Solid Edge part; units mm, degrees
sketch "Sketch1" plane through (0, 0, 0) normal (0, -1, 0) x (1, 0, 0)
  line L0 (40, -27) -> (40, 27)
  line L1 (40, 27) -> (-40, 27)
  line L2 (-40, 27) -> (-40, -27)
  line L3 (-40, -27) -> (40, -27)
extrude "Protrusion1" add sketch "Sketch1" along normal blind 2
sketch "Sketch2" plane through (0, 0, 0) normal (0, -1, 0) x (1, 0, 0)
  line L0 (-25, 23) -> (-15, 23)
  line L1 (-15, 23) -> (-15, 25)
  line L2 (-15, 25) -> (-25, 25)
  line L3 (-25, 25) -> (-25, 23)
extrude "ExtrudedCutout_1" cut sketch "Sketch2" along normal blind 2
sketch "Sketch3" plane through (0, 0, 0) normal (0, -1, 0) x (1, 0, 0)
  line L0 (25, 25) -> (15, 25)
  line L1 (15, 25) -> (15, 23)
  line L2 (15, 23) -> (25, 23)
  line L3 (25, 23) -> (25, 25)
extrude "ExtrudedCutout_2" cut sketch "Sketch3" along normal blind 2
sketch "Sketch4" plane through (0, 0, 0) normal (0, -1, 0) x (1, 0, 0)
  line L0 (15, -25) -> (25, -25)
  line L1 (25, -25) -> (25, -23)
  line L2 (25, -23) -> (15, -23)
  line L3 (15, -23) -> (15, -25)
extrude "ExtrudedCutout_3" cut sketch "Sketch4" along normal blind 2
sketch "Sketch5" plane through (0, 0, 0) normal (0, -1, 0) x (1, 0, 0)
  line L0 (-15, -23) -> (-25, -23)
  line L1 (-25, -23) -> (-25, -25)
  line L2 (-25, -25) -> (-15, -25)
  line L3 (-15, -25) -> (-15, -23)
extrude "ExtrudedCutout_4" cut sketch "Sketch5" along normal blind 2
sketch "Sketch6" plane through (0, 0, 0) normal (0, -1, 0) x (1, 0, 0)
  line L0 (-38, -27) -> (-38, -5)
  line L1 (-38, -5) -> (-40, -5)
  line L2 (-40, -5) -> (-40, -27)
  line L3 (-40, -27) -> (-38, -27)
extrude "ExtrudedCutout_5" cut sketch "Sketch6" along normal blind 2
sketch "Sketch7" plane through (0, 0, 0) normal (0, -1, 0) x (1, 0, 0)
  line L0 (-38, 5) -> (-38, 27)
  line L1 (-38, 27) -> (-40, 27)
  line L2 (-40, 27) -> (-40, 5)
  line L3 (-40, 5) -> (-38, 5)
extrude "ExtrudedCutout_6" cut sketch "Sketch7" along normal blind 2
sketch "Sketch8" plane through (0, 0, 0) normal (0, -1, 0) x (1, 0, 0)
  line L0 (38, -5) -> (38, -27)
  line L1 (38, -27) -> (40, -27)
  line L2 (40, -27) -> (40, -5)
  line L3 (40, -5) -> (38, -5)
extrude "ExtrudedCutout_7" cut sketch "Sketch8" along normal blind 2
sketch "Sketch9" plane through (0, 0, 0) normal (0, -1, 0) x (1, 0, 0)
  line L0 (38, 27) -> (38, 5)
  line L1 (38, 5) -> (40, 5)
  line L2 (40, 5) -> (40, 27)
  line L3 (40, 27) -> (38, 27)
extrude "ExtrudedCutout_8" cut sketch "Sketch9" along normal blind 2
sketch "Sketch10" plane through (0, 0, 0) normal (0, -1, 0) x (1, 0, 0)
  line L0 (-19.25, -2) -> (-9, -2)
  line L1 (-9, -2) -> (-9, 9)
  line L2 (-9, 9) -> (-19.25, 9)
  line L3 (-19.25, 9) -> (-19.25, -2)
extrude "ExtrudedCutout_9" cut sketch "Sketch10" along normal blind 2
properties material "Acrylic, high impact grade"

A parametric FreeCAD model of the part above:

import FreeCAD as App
import Part
import Sketcher


def add_polygon(sketch, points):
    """Adds a closed chain of lines whose ends are joined by coincident constraints."""
    first, n = sketch.GeometryCount, len(points)
    for a, b in zip(points, points[1:] + points[:1]):
        sketch.addGeometry(Part.LineSegment(App.Vector(*a, 0), App.Vector(*b, 0)), False)
    for i in range(n):
        sketch.addConstraint(Sketcher.Constraint("Coincident", first + i, 2, first + (i + 1) % n, 1))

doc = App.newDocument("Part")
body = doc.addObject("PartDesign::Body", "Body")

# Sketch on XZ plane
sketch1 = body.newObject("Sketcher::SketchObject", "Sketch")
sketch1.AttachmentSupport = (doc.getObject("XZ_Plane"), [""])
sketch1.MapMode = "FlatFace"
add_polygon(sketch1, [(-40, -27), (40, -27), (40, 27), (-40, 27)])  # lines 0-3
sketch1.addConstraint([
    Sketcher.Constraint("Horizontal", 0),
    Sketcher.Constraint("Vertical", 1),
    Sketcher.Constraint("Horizontal", 2),
    Sketcher.Constraint("Vertical", 3),
    Sketcher.Constraint("Symmetric", 0, 2, 2, 2, -1, 1),
    Sketcher.Constraint("DistanceX", 0, 1, 0, 2, 80.0),
    Sketcher.Constraint("DistanceY", 1, 1, 1, 2, 54.0),
])
pad1 = body.newObject("PartDesign::Pad", "Pad")
pad1.Profile = sketch1
pad1.Length = 2

# Sketch on XZ plane
sketch2 = body.newObject("Sketcher::SketchObject", "Sketch001")
sketch2.AttachmentSupport = (doc.getObject("XZ_Plane"), [""])
sketch2.MapMode = "FlatFace"
add_polygon(sketch2, [(-25, 25), (-25, 23), (-15, 23), (-15, 25)])  # lines 0-3
sketch2.addConstraint([
    Sketcher.Constraint("Vertical", 0),
    Sketcher.Constraint("Horizontal", 1),
    Sketcher.Constraint("Vertical", 2),
    Sketcher.Constraint("Horizontal", 3),
    Sketcher.Constraint("DistanceX", 1, 1, 1, 2, 10.0),
    Sketcher.Constraint("DistanceY", 0, 2, 0, 1, 2.0),
    Sketcher.Constraint("DistanceX", 0, 2, -1, 1, 25.0),
    Sketcher.Constraint("DistanceY", -1, 1, 0, 2, 23.0),
])
pocket1 = body.newObject("PartDesign::Pocket", "Pocket")
pocket1.Profile = sketch2
pocket1.Length = 2
pocket1.Reversed = True

# Sketch on XZ plane
sketch3 = body.newObject("Sketcher::SketchObject", "Sketch002")
sketch3.AttachmentSupport = (doc.getObject("XZ_Plane"), [""])
sketch3.MapMode = "FlatFace"
add_polygon(sketch3, [(25, 23), (25, 25), (15, 25), (15, 23)])  # lines 0-3
sketch3.addConstraint([
    Sketcher.Constraint("Vertical", 0),
    Sketcher.Constraint("Horizontal", 1),
    Sketcher.Constraint("Vertical", 2),
    Sketcher.Constraint("Horizontal", 3),
    Sketcher.Constraint("DistanceX", 1, 2, 1, 1, 10.0),
    Sketcher.Constraint("DistanceY", 0, 1, 0, 2, 2.0),
    Sketcher.Constraint("DistanceX", -1, 1, 0, 2, 25.0),
    Sketcher.Constraint("DistanceY", -1, 1, 0, 2, 25.0),
])
pocket2 = body.newObject("PartDesign::Pocket", "Pocket001")
pocket2.Profile = sketch3
pocket2.Length = 2
pocket2.Reversed = True

# Sketch on XZ plane
sketch4 = body.newObject("Sketcher::SketchObject", "Sketch003")
sketch4.AttachmentSupport = (doc.getObject("XZ_Plane"), [""])
sketch4.MapMode = "FlatFace"
add_polygon(sketch4, [(15, -23), (15, -25), (25, -25), (25, -23)])  # lines 0-3
sketch4.addConstraint([
    Sketcher.Constraint("Vertical", 0),
    Sketcher.Constraint("Horizontal", 1),
    Sketcher.Constraint("Vertical", 2),
    Sketcher.Constraint("Horizontal", 3),
    Sketcher.Constraint("DistanceX", 1, 1, 1, 2, 10.0),
    Sketcher.Constraint("DistanceY", 0, 2, 0, 1, 2.0),
    Sketcher.Constraint("DistanceX", -1, 1, 0, 2, 15.0),
    Sketcher.Constraint("DistanceY", 0, 2, -1, 1, 25.0),
])
pocket3 = body.newObject("PartDesign::Pocket", "Pocket002")
pocket3.Profile = sketch4
pocket3.Length = 2
pocket3.Reversed = True

# Sketch on XZ plane
sketch5 = body.newObject("Sketcher::SketchObject", "Sketch004")
sketch5.AttachmentSupport = (doc.getObject("XZ_Plane"), [""])
sketch5.MapMode = "FlatFace"
add_polygon(sketch5, [(-15, -25), (-15, -23), (-25, -23), (-25, -25)])  # lines 0-3
sketch5.addConstraint([
    Sketcher.Constraint("Vertical", 0),
    Sketcher.Constraint("Horizontal", 1),
    Sketcher.Constraint("Vertical", 2),
    Sketcher.Constraint("Horizontal", 3),
    Sketcher.Constraint("DistanceX", 1, 2, 1, 1, 10.0),
    Sketcher.Constraint("DistanceY", 0, 1, 0, 2, 2.0),
    Sketcher.Constraint("DistanceX", 0, 2, -1, 1, 15.0),
    Sketcher.Constraint("DistanceY", 0, 2, -1, 1, 23.0),
])
pocket4 = body.newObject("PartDesign::Pocket", "Pocket003")
pocket4.Profile = sketch5
pocket4.Length = 2
pocket4.Reversed = True

# Sketch on XZ plane
sketch6 = body.newObject("Sketcher::SketchObject", "Sketch005")
sketch6.AttachmentSupport = (doc.getObject("XZ_Plane"), [""])
sketch6.MapMode = "FlatFace"
add_polygon(sketch6, [(-40, -27), (-38, -27), (-38, -5), (-40, -5)])  # lines 0-3
sketch6.addConstraint([
    Sketcher.Constraint("Horizontal", 0),
    Sketcher.Constraint("Vertical", 1),
    Sketcher.Constraint("Horizontal", 2),
    Sketcher.Constraint("Vertical", 3),
    Sketcher.Constraint("DistanceX", 0, 1, 0, 2, 2.0),
    Sketcher.Constraint("DistanceY", 1, 1, 1, 2, 22.0),
    Sketcher.Constraint("DistanceX", 0, 2, -1, 1, 38.0),
    Sketcher.Constraint("DistanceY", 0, 2, -1, 1, 27.0),
])
pocket5 = body.newObject("PartDesign::Pocket", "Pocket004")
pocket5.Profile = sketch6
pocket5.Length = 2
pocket5.Reversed = True

# Sketch on XZ plane
sketch7 = body.newObject("Sketcher::SketchObject", "Sketch006")
sketch7.AttachmentSupport = (doc.getObject("XZ_Plane"), [""])
sketch7.MapMode = "FlatFace"
add_polygon(sketch7, [(-40, 5), (-38, 5), (-38, 27), (-40, 27)])  # lines 0-3
sketch7.addConstraint([
    Sketcher.Constraint("Horizontal", 0),
    Sketcher.Constraint("Vertical", 1),
    Sketcher.Constraint("Horizontal", 2),
    Sketcher.Constraint("Vertical", 3),
    Sketcher.Constraint("DistanceX", 0, 1, 0, 2, 2.0),
    Sketcher.Constraint("DistanceY", 1, 1, 1, 2, 22.0),
    Sketcher.Constraint("DistanceX", 0, 2, -1, 1, 38.0),
    Sketcher.Constraint("DistanceY", -1, 1, 0, 2, 5.0),
])
pocket6 = body.newObject("PartDesign::Pocket", "Pocket005")
pocket6.Profile = sketch7
pocket6.Length = 2
pocket6.Reversed = True

# Sketch on XZ plane
sketch8 = body.newObject("Sketcher::SketchObject", "Sketch007")
sketch8.AttachmentSupport = (doc.getObject("XZ_Plane"), [""])
sketch8.MapMode = "FlatFace"
add_polygon(sketch8, [(40, -5), (38, -5), (38, -27), (40, -27)])  # lines 0-3
sketch8.addConstraint([
    Sketcher.Constraint("Horizontal", 0),
    Sketcher.Constraint("Vertical", 1),
    Sketcher.Constraint("Horizontal", 2),
    Sketcher.Constraint("Vertical", 3),
    Sketcher.Constraint("DistanceX", 0, 2, 0, 1, 2.0),
    Sketcher.Constraint("DistanceY", 1, 2, 1, 1, 22.0),
    Sketcher.Constraint("DistanceX", -1, 1, 0, 2, 38.0),
    Sketcher.Constraint("DistanceY", 0, 2, -1, 1, 5.0),
])
pocket7 = body.newObject("PartDesign::Pocket", "Pocket006")
pocket7.Profile = sketch8
pocket7.Length = 2
pocket7.Reversed = True

# Sketch on XZ plane
sketch9 = body.newObject("Sketcher::SketchObject", "Sketch008")
sketch9.AttachmentSupport = (doc.getObject("XZ_Plane"), [""])
sketch9.MapMode = "FlatFace"
add_polygon(sketch9, [(40, 27), (38, 27), (38, 5), (40, 5)])  # lines 0-3
sketch9.addConstraint([
    Sketcher.Constraint("Horizontal", 0),
    Sketcher.Constraint("Vertical", 1),
    Sketcher.Constraint("Horizontal", 2),
    Sketcher.Constraint("Vertical", 3),
    Sketcher.Constraint("DistanceX", 0, 2, 0, 1, 2.0),
    Sketcher.Constraint("DistanceY", 1, 2, 1, 1, 22.0),
    Sketcher.Constraint("DistanceX", -1, 1, 0, 2, 38.0),
    Sketcher.Constraint("DistanceY", -1, 1, 0, 2, 27.0),
])
pocket8 = body.newObject("PartDesign::Pocket", "Pocket007")
pocket8.Profile = sketch9
pocket8.Length = 2
pocket8.Reversed = True

# Sketch on XZ plane
sketch10 = body.newObject("Sketcher::SketchObject", "Sketch009")
sketch10.AttachmentSupport = (doc.getObject("XZ_Plane"), [""])
sketch10.MapMode = "FlatFace"
add_polygon(sketch10, [(-19, 9), (-19, -2), (-9, -2), (-9, 9)])  # lines 0-3
sketch10.addConstraint([
    Sketcher.Constraint("Vertical", 0),
    Sketcher.Constraint("Horizontal", 1),
    Sketcher.Constraint("Vertical", 2),
    Sketcher.Constraint("Horizontal", 3),
    Sketcher.Constraint("DistanceY", 0, 2, 0, 1, 11.0),
    Sketcher.Constraint("DistanceY", 0, 2, -1, 1, 2.0),
    Sketcher.Constraint("DistanceX", 1, 2, -1, 1, 9.0),
    Sketcher.Constraint("DistanceX", 1, 1, 1, 2, 10.25),
])
pocket9 = body.newObject("PartDesign::Pocket", "Pocket008")
pocket9.Profile = sketch10
pocket9.Length = 2
pocket9.Reversed = True

doc.recompute()
